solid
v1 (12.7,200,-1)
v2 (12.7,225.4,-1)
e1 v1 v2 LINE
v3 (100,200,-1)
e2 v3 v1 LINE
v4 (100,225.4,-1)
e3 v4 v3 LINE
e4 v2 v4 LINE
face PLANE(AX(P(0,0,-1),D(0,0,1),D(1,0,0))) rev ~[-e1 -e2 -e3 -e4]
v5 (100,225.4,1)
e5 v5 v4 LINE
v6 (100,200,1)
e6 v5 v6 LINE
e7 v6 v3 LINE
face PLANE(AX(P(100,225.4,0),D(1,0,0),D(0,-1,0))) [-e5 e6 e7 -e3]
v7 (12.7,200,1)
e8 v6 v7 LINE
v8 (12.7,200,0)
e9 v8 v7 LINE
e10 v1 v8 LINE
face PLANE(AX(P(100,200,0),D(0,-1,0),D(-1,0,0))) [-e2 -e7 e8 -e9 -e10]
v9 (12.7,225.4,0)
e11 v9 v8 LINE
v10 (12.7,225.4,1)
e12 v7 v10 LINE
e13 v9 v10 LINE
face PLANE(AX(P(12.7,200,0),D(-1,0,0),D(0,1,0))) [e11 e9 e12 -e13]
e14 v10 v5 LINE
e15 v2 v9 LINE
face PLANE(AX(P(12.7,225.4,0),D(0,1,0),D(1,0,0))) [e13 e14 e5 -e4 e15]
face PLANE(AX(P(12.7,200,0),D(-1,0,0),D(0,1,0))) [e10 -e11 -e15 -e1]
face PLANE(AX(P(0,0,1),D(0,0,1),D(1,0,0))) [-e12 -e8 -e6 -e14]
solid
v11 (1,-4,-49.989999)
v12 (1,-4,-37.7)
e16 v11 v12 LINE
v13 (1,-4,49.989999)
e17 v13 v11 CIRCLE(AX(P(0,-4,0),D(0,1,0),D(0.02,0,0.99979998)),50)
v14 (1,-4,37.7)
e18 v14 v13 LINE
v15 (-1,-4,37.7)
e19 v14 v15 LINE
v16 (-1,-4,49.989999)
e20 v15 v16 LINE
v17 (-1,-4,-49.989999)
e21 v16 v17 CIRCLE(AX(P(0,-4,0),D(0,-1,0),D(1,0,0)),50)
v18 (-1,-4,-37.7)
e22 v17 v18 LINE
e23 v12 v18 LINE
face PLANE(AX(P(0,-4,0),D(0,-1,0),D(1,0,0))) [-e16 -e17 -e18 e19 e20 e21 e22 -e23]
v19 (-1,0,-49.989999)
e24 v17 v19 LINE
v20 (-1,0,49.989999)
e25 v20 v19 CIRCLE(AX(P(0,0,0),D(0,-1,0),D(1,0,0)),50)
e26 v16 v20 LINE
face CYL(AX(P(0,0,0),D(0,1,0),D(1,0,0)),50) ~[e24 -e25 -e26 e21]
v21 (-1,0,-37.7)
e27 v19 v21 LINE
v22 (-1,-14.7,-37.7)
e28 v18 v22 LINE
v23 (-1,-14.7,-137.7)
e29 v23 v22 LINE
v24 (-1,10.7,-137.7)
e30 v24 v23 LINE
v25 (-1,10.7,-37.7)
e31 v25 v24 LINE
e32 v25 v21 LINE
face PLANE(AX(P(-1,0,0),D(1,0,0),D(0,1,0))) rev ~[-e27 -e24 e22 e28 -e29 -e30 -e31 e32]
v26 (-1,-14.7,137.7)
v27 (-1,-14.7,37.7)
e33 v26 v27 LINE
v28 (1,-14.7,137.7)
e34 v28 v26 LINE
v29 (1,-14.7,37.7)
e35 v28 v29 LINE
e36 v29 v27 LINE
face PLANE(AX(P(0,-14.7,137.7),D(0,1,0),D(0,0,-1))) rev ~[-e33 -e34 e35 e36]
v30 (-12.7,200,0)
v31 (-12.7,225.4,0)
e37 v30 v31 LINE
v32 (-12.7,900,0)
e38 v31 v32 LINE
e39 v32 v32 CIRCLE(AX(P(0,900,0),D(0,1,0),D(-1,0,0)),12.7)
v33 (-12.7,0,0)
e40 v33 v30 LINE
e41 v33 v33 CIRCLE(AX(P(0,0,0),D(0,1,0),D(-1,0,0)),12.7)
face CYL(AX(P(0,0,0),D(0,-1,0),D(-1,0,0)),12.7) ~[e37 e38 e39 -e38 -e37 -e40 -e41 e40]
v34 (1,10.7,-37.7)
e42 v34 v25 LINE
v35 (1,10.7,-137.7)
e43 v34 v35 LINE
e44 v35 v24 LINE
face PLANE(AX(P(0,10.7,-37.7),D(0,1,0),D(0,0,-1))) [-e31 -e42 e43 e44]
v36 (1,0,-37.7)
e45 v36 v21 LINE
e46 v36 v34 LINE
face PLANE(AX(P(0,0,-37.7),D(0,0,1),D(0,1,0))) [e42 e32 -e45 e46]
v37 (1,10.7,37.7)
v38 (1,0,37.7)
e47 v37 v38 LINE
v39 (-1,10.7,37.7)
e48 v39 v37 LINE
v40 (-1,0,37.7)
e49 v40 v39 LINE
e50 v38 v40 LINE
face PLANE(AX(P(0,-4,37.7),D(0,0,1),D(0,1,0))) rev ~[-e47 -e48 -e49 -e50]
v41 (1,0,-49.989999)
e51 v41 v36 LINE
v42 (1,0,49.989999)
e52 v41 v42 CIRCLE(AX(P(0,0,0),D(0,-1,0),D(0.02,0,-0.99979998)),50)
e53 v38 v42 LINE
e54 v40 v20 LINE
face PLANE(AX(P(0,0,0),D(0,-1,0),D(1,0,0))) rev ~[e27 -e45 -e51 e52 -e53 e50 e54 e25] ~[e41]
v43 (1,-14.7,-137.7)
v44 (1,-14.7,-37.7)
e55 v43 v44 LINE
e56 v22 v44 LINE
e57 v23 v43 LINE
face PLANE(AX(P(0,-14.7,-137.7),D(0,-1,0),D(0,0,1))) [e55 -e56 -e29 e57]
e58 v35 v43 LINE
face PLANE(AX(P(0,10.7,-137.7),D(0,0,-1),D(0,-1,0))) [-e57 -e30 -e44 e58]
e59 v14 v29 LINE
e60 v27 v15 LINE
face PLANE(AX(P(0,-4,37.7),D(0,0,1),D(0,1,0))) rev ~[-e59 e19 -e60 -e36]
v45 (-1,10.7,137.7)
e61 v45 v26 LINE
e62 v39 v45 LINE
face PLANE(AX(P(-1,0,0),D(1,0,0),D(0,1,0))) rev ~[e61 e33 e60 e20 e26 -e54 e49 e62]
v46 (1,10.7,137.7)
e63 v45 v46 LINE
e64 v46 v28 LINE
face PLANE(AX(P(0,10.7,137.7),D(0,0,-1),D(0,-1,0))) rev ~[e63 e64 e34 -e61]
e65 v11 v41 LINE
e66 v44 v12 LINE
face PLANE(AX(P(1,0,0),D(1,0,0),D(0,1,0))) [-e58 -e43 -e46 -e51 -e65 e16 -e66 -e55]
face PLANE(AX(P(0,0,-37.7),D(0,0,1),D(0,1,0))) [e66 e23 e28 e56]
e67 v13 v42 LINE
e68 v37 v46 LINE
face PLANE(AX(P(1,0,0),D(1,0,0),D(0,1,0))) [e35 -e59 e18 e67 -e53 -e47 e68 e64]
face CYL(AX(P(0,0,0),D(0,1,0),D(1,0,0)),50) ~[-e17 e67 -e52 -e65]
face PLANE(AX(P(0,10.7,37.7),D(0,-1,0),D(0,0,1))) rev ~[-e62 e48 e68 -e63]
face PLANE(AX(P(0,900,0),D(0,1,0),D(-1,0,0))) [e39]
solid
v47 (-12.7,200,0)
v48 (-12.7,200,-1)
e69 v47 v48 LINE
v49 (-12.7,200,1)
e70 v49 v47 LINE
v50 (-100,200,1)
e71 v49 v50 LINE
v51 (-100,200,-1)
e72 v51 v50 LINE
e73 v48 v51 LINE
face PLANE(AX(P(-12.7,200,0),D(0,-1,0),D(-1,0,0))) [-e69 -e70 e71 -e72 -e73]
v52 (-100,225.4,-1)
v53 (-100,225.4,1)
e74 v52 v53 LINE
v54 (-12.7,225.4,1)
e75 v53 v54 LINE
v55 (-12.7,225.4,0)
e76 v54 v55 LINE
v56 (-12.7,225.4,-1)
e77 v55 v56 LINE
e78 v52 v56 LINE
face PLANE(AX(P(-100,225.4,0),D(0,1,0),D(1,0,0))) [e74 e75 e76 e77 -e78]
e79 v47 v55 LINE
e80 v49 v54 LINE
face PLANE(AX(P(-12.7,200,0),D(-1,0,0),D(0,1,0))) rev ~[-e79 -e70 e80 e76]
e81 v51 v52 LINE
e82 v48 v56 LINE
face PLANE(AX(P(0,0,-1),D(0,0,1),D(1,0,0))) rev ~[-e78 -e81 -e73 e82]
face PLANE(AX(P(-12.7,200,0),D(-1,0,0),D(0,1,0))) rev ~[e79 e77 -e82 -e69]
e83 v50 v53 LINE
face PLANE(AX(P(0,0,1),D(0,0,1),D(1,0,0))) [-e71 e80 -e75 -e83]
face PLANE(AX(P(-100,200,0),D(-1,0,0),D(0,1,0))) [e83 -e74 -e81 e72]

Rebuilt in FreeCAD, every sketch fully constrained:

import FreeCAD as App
import Part
import Sketcher
from FreeCAD import Vector
Q = App.Units.Quantity

doc = App.newDocument("Part")
body = doc.addObject("PartDesign::Body", "Body")
body.AllowCompound = True

sketch1 = doc.addObject("Sketcher::SketchObject", "Sketch")
body.addObject(sketch1)
sketch1.AttachmentSupport = (doc.XZ_Plane, [""])
sketch1.MapMode = "FlatFace"
sketch1.addGeometry(Part.Circle(Vector(0, 0, 0), Vector(0, 0, 1), 13), False)
sketch1.addConstraint(Sketcher.Constraint("Coincident", 0, 3, -1, 1))
sketch1.addConstraint(Sketcher.Constraint("Diameter", 0, Q("25.4 mm")))
pad1 = doc.addObject("PartDesign::Pad", "Pad")
body.addObject(pad1)
pad1.Profile = sketch1
pad1.Length = 900
pad1.Reversed = True

sketch2 = doc.addObject("Sketcher::SketchObject", "Sketch001")
body.addObject(sketch2)
sketch2.AttachmentSupport = (doc.XZ_Plane, [""])
sketch2.MapMode = "FlatFace"
sketch2.addGeometry(Part.Circle(Vector(0, 0, 0), Vector(0, 0, 1), 50), False)
sketch2.addConstraint(Sketcher.Constraint("Coincident", 0, 3, -1, 1))
sketch2.addConstraint(Sketcher.Constraint("Diameter", 0, Q("100 mm")))
pad2 = doc.addObject("PartDesign::Pad", "Pad001")
body.addObject(pad2)
pad2.Profile = sketch2
pad2.Length = 4

sketch3 = doc.addObject("Sketcher::SketchObject", "Sketch002")
body.addObject(sketch3)
sketch3.AttachmentSupport = (doc.YZ_Plane, [""])
sketch3.MapMode = "FlatFace"
sketch3.addGeometry(Part.LineSegment(Vector(-15, 38, 0), Vector(11, 38, 0)), False)
sketch3.addGeometry(Part.LineSegment(Vector(11, 38, 0), Vector(11, 138, 0)), False)
sketch3.addGeometry(Part.LineSegment(Vector(11, 138, 0), Vector(-15, 138, 0)), False)
sketch3.addGeometry(Part.LineSegment(Vector(-15, 138, 0), Vector(-15, 38, 0)), False)
sketch3.addGeometry(Part.LineSegment(Vector(11, -38, 0), Vector(-15, -38, 0)), False)
sketch3.addGeometry(Part.LineSegment(Vector(-15, -38, 0), Vector(-15, -138, 0)), False)
sketch3.addGeometry(Part.LineSegment(Vector(-15, -138, 0), Vector(11, -138, 0)), False)
sketch3.addGeometry(Part.LineSegment(Vector(11, -138, 0), Vector(11, -38, 0)), False)
sketch3.addConstraint(Sketcher.Constraint("Coincident", 0, 2, 1, 1))
sketch3.addConstraint(Sketcher.Constraint("Coincident", 1, 2, 2, 1))
sketch3.addConstraint(Sketcher.Constraint("Coincident", 2, 2, 3, 1))
sketch3.addConstraint(Sketcher.Constraint("Coincident", 3, 2, 0, 1))
sketch3.addConstraint(Sketcher.Constraint("Coincident", 4, 2, 5, 1))
sketch3.addConstraint(Sketcher.Constraint("Coincident", 5, 2, 6, 1))
sketch3.addConstraint(Sketcher.Constraint("Coincident", 6, 2, 7, 1))
sketch3.addConstraint(Sketcher.Constraint("Coincident", 7, 2, 4, 1))
sketch3.addConstraint(Sketcher.Constraint("Horizontal", 0))
sketch3.addConstraint(Sketcher.Constraint("Vertical", 1))
sketch3.addConstraint(Sketcher.Constraint("Horizontal", 2))
sketch3.addConstraint(Sketcher.Constraint("Vertical", 3))
sketch3.addConstraint(Sketcher.Constraint("Horizontal", 4))
sketch3.addConstraint(Sketcher.Constraint("Vertical", 5))
sketch3.addConstraint(Sketcher.Constraint("Horizontal", 6))
sketch3.addConstraint(Sketcher.Constraint("Vertical", 7))
sketch3.addConstraint(Sketcher.Constraint("Symmetric", 3, 2, 4, 2, -1))
sketch3.addConstraint(Sketcher.Constraint("Symmetric", 1, 2, 6, 2, -1))
sketch3.addConstraint(Sketcher.Constraint("DistanceY", 1, 1, 1, 2, Q("100 mm")))
sketch3.addConstraint(Sketcher.Constraint("DistanceX", 0, 1, 0, 2, Q("25.4 mm")))
sketch3.addConstraint(Sketcher.Constraint("DistanceX", -1, 1, 0, 2, Q("10.7 mm")))
sketch3.addConstraint(Sketcher.Constraint("DistanceY", -1, 1, 0, 2, Q("37.7 mm")))
pad3 = doc.addObject("PartDesign::Pad", "Pad002")
body.addObject(pad3)
pad3.Profile = sketch3
pad3.Length = 2
pad3.Midplane = True

sketch4 = doc.addObject("Sketcher::SketchObject", "Sketch003")
body.addObject(sketch4)
sketch4.AttachmentSupport = (doc.XY_Plane, [""])
sketch4.MapMode = "FlatFace"
sketch4.addGeometry(Part.LineSegment(Vector(-13, 225, 0), Vector(-100, 225, 0)), False)
sketch4.addGeometry(Part.LineSegment(Vector(-100, 225, 0), Vector(-100, 200, 0)), False)
sketch4.addGeometry(Part.LineSegment(Vector(-100, 200, 0), Vector(-13, 200, 0)), False)
sketch4.addGeometry(Part.LineSegment(Vector(-13, 200, 0), Vector(-13, 225, 0)), False)
sketch4.addGeometry(Part.LineSegment(Vector(100, 225, 0), Vector(13, 225, 0)), False)
sketch4.addGeometry(Part.LineSegment(Vector(13, 225, 0), Vector(13, 200, 0)), False)
sketch4.addGeometry(Part.LineSegment(Vector(13, 200, 0), Vector(100, 200, 0)), False)
sketch4.addGeometry(Part.LineSegment(Vector(100, 200, 0), Vector(100, 225, 0)), False)
sketch4.addConstraint(Sketcher.Constraint("Coincident", 0, 2, 1, 1))
sketch4.addConstraint(Sketcher.Constraint("Coincident", 1, 2, 2, 1))
sketch4.addConstraint(Sketcher.Constraint("Coincident", 2, 2, 3, 1))
sketch4.addConstraint(Sketcher.Constraint("Coincident", 3, 2, 0, 1))
sketch4.addConstraint(Sketcher.Constraint("Coincident", 4, 2, 5, 1))
sketch4.addConstraint(Sketcher.Constraint("Coincident", 5, 2, 6, 1))
sketch4.addConstraint(Sketcher.Constraint("Coincident", 6, 2, 7, 1))
sketch4.addConstraint(Sketcher.Constraint("Coincident", 7, 2, 4, 1))
sketch4.addConstraint(Sketcher.Constraint("Horizontal", 0))
sketch4.addConstraint(Sketcher.Constraint("Vertical", 1))
sketch4.addConstraint(Sketcher.Constraint("Horizontal", 2))
sketch4.addConstraint(Sketcher.Constraint("Vertical", 3))
sketch4.addConstraint(Sketcher.Constraint("Horizontal", 4))
sketch4.addConstraint(Sketcher.Constraint("Vertical", 5))
sketch4.addConstraint(Sketcher.Constraint("Horizontal", 6))
sketch4.addConstraint(Sketcher.Constraint("Vertical", 7))
sketch4.addConstraint(Sketcher.Constraint("Symmetric", 3, 2, 4, 2, -2))
sketch4.addConstraint(Sketcher.Constraint("Symmetric", 1, 2, 6, 2, -2))
sketch4.addConstraint(Sketcher.Constraint("DistanceX", 0, 2, 0, 1, Q("87.3 mm")))
sketch4.addConstraint(Sketcher.Constraint("DistanceY", 1, 2, 1, 1, Q("25.4 mm")))
sketch4.addConstraint(Sketcher.Constraint("DistanceY", -1, 1, 1, 2, Q("200 mm")))
sketch4.addConstraint(Sketcher.Constraint("DistanceX", 1, 2, 6, 2, Q("200 mm")))
pad4 = doc.addObject("PartDesign::Pad", "Pad003")
body.addObject(pad4)
pad4.Profile = sketch4
pad4.Length = 2
pad4.Midplane = True

doc.recompute()
